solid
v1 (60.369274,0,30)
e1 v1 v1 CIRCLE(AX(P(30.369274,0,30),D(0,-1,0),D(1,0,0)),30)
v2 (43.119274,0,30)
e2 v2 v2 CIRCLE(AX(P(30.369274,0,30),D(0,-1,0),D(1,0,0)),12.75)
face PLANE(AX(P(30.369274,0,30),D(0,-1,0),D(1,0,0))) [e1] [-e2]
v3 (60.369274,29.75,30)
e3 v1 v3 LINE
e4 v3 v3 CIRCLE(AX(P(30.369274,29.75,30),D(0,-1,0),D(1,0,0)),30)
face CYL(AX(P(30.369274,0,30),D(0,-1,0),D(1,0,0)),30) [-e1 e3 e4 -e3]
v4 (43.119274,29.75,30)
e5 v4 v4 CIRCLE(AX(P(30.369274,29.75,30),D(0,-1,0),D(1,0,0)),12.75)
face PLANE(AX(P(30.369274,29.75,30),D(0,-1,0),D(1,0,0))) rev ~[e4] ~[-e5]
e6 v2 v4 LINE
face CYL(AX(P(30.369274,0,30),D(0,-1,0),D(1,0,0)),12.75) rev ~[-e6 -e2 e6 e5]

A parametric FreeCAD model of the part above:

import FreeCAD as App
import Part
import Sketcher

V = App.Vector
Q = App.Units.Quantity

doc = App.newDocument("Part")
body = doc.addObject("PartDesign::Body", "Body")

# Sketch on XZ plane
sketch1 = body.newObject("Sketcher::SketchObject", "Sketch")
sketch1.AttachmentSupport = (doc.getObject("XZ_Plane"), [""])
sketch1.MapMode = "FlatFace"
sketch1.addGeometry(Part.Circle(V(30.369274, 30, 0), V(0, 0, 1), 30), False)
sketch1.addGeometry(Part.Circle(V(30.369274, 30, 0), V(0, 0, 1), 12.75), False)
sketch1.addConstraint(Sketcher.Constraint("Coincident", 1, 3, 0, 3))
sketch1.addConstraint(Sketcher.Constraint("Diameter", 0, Q("60 mm")))
sketch1.addConstraint(Sketcher.Constraint("Diameter", 1, Q("25.5 mm")))
sketch1.addConstraint(Sketcher.Constraint("DistanceY", -1, 1, 0, 3, Q("30 mm")))
sketch1.addConstraint(Sketcher.Constraint("DistanceX", -1, 1, 0, 3, Q("30.369274 mm")))
pad1 = body.newObject("PartDesign::Pad", "Pad")
pad1.Profile = sketch1
pad1.Length = 29.75
pad1.Reversed = True

doc.recompute()
